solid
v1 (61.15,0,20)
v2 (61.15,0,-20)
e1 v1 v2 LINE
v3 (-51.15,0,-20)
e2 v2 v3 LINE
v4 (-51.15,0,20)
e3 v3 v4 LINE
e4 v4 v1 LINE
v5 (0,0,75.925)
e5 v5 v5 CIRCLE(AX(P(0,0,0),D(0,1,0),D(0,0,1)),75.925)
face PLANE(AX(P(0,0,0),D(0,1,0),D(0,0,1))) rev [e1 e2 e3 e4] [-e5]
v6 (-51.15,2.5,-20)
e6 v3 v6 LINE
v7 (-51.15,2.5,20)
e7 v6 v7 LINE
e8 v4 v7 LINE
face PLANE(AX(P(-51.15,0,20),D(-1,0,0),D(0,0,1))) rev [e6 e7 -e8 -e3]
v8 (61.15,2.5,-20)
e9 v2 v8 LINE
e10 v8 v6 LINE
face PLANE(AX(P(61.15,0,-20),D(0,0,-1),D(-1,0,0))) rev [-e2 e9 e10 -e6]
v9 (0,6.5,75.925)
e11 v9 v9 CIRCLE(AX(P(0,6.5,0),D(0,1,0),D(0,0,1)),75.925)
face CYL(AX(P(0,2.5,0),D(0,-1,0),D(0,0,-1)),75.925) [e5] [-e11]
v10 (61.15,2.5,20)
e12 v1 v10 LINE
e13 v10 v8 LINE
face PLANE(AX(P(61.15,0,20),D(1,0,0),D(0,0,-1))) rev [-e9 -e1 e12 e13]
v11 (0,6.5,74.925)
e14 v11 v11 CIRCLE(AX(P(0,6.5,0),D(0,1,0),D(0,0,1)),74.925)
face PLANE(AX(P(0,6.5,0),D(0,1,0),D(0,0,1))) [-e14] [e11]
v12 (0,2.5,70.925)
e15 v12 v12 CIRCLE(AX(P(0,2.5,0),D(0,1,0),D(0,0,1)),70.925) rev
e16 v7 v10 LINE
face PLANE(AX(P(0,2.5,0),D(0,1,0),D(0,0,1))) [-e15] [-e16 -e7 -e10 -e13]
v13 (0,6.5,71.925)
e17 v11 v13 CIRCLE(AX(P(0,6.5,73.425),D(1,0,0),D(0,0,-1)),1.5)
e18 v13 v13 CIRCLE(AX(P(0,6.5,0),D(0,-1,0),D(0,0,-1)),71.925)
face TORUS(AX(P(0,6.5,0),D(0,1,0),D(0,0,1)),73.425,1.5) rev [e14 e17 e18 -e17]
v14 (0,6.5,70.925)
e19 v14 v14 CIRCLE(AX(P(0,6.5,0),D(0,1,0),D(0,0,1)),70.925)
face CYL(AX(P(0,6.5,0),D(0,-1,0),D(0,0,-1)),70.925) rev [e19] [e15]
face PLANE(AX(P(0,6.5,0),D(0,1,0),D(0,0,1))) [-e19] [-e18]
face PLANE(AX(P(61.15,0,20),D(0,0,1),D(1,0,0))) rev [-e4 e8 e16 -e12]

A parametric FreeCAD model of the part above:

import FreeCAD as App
import Part
import Sketcher

V = App.Vector

doc = App.newDocument("Part")
body = doc.addObject("PartDesign::Body", "Body")

# Sketch on XZ plane
sketch1 = doc.addObject("Sketcher::SketchObject", "Sketch")
body.addObject(sketch1)
sketch1.AttachmentSupport = (doc.XZ_Plane, [""])
sketch1.MapMode = "FlatFace"
sketch1.addGeometry(Part.Circle(V(0, 0, 0), V(0, 0, 1), 76), False)
sketch1.addConstraint([
    Sketcher.Constraint("Coincident", 0, 3, -1, 1),
    Sketcher.Constraint("Diameter", 0, 151.85),
])
pad1 = doc.addObject("PartDesign::Pad", "Pad")
body.addObject(pad1)
pad1.Profile = sketch1
pad1.Length = 2.5
pad1.Reversed = True

# Sketch on XZ plane
sketch2 = doc.addObject("Sketcher::SketchObject", "Sketch001")
body.addObject(sketch2)
sketch2.AttachmentSupport = (doc.XZ_Plane, [""])
sketch2.MapMode = "FlatFace"
sketch2.AttachmentOffset = App.Placement(V(0, 0, -2.5), App.Rotation())
sketch2.addGeometry([
    Part.LineSegment(V(-51, -20, 0), V(-51, 20, 0)),
    Part.LineSegment(V(-51, 20, 0), V(61, 20, 0)),
    Part.LineSegment(V(61, 20, 0), V(61, -20, 0)),
    Part.LineSegment(V(61, -20, 0), V(-51, -20, 0)),
], False)
sketch2.addConstraint([
    Sketcher.Constraint("Coincident", 0, 2, 1, 1),
    Sketcher.Constraint("Coincident", 1, 2, 2, 1),
    Sketcher.Constraint("Coincident", 2, 2, 3, 1),
    Sketcher.Constraint("Coincident", 3, 2, 0, 1),
    Sketcher.Constraint("Vertical", 0),
    Sketcher.Constraint("Horizontal", 1),
    Sketcher.Constraint("Vertical", 2),
    Sketcher.Constraint("Horizontal", 3),
    Sketcher.Constraint("DistanceY", 0, 1, 0, 2, 40.0),
    Sketcher.Constraint("DistanceX", 1, 1, 1, 2, 112.3),
    Sketcher.Constraint("DistanceY", -1, 1, 0, 2, 20.0),
    Sketcher.Constraint("DistanceX", 0, 2, -1, 1, 51.15),
])
pocket1 = doc.addObject("PartDesign::Pocket", "Pocket")
body.addObject(pocket1)
pocket1.Profile = sketch2
pocket1.Type = "ThroughAll"
pocket1.Reversed = True

# Sketch on XZ plane
sketch3 = doc.addObject("Sketcher::SketchObject", "Sketch002")
body.addObject(sketch3)
sketch3.AttachmentSupport = (doc.XZ_Plane, [""])
sketch3.MapMode = "FlatFace"
sketch3.AttachmentOffset = App.Placement(V(0, 0, -2.5), App.Rotation())
sketch3.addGeometry([
    Part.Circle(V(0, 0, 0), V(0, 0, 1), 76),
    Part.Circle(V(0, 0, 0), V(0, 0, 1), 71),
], False)
sketch3.addConstraint([
    Sketcher.Constraint("Coincident", 0, 3, -1, 1),
    Sketcher.Constraint("Coincident", 1, 3, -1, 1),
    Sketcher.Constraint("Diameter", 0, 151.85),
    Sketcher.Constraint("Diameter", 1, 141.85),
])
pad2 = doc.addObject("PartDesign::Pad", "Pad001")
body.addObject(pad2)
pad2.Profile = sketch3
pad2.Length = 4
pad2.Reversed = True

# Sketch on XY plane
sketch4 = doc.addObject("Sketcher::SketchObject", "Sketch003")
body.addObject(sketch4)
sketch4.AttachmentSupport = (doc.XY_Plane, [""])
sketch4.MapMode = "FlatFace"
sketch4.addGeometry(Part.Circle(V(73.4, 6.5, 0), V(0, 0, 1), 1.5), False)
sketch4.addConstraint([
    Sketcher.Constraint("Diameter", 0, 3.0),
    Sketcher.Constraint("DistanceY", -1, 1, 0, 3, 6.5),
    Sketcher.Constraint("DistanceX", -1, 1, 0, 3, 73.425),
])

# Sketch on XZ plane
sketch5 = doc.addObject("Sketcher::SketchObject", "Sketch004")
body.addObject(sketch5)
sketch5.AttachmentSupport = (doc.XZ_Plane, [""])
sketch5.MapMode = "FlatFace"
sketch5.AttachmentOffset = App.Placement(V(0, 0, -6.5), App.Rotation())
sketch5.addGeometry(Part.Circle(V(0, 0, 0), V(0, 0, 1), 73), False)
sketch5.addConstraint([
    Sketcher.Constraint("Coincident", 0, 3, -1, 1),
    Sketcher.Constraint("Diameter", 0, 146.85),
])
doc.recompute()

subtractivepipe = doc.addObject("PartDesign::SubtractivePipe", "SubtractivePipe")
body.addObject(subtractivepipe)
subtractivepipe.Profile = sketch4
subtractivepipe.Spine = (sketch5, ["Edge1"])

doc.recompute()
